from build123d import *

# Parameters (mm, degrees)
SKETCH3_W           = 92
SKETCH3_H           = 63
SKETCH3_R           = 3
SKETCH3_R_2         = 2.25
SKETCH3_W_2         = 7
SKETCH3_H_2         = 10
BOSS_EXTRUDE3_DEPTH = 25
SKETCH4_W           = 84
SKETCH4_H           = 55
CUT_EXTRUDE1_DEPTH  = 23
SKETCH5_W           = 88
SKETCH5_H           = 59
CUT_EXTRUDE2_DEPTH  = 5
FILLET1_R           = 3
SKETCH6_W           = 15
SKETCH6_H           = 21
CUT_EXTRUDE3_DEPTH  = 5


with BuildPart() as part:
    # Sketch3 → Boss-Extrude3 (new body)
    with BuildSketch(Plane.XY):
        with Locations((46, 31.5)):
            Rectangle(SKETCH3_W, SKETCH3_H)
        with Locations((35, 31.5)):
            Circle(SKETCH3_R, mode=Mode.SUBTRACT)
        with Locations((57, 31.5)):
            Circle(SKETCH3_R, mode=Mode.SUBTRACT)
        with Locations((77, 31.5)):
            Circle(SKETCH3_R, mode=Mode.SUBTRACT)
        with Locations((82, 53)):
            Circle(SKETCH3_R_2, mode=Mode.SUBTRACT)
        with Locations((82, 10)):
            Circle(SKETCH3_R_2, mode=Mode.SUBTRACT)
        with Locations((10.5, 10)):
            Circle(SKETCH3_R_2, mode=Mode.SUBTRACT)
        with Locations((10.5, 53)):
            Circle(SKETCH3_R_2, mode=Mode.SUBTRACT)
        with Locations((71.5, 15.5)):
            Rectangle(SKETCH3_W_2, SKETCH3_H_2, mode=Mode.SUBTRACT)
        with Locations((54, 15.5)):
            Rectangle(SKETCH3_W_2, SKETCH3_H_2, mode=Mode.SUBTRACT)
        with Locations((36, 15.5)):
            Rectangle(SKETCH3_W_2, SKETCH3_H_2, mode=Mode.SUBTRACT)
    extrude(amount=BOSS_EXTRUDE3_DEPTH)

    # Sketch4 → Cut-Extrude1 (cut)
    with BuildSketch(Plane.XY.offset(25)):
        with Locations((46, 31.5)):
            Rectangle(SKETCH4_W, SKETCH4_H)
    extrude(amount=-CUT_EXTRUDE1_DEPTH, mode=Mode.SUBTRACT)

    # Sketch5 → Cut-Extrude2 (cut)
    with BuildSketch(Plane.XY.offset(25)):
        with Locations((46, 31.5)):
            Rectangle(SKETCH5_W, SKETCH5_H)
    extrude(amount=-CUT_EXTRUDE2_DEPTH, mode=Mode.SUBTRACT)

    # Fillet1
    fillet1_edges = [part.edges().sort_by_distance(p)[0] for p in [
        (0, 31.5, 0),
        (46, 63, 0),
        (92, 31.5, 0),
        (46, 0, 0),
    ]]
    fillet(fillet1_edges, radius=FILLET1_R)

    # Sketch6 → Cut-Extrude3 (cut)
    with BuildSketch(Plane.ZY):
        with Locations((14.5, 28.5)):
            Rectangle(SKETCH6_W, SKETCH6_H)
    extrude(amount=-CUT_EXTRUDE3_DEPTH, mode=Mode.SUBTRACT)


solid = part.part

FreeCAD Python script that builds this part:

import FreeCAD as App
import Part
import Sketcher


def edges_at(feature, points):
    """Names of the edges that pass closest to the given points."""
    edges = feature.Shape.Edges
    near = lambda p: min(range(len(edges)), key=lambda i: edges[i].distToShape(Part.Vertex(*p))[0])
    return sorted({f"Edge{near(p) + 1}" for p in points})

doc = App.newDocument("Part")
body = doc.addObject("PartDesign::Body", "Body")

# Sketch on XY plane
sketch1 = doc.addObject("Sketcher::SketchObject", "Sketch")
body.addObject(sketch1)
sketch1.AttachmentSupport = (doc.XY_Plane, [""])
sketch1.MapMode = "FlatFace"
sketch1.addGeometry([
    Part.LineSegment(App.Vector(0, 63, 0), App.Vector(0, 0, 0)),  # 0
    Part.LineSegment(App.Vector(0, 0, 0), App.Vector(92, 0, 0)),  # 1
    Part.LineSegment(App.Vector(92, 0, 0), App.Vector(92, 63, 0)),  # 2
    Part.LineSegment(App.Vector(92, 63, 0), App.Vector(0, 63, 0)),  # 3
    Part.Circle(App.Vector(10.5, 10, 0), App.Vector(0, 0, 1), 2.2),  # 4
    Part.LineSegment(App.Vector(39.5, 10.5, 0), App.Vector(32.5, 10.5, 0)),  # 5
    Part.LineSegment(App.Vector(32.5, 10.5, 0), App.Vector(32.5, 20.5, 0)),  # 6
    Part.LineSegment(App.Vector(32.5, 20.5, 0), App.Vector(39.5, 20.5, 0)),  # 7
    Part.LineSegment(App.Vector(39.5, 20.5, 0), App.Vector(39.5, 10.5, 0)),  # 8
    Part.LineSegment(App.Vector(57.5, 10.5, 0), App.Vector(50.5, 10.5, 0)),  # 9
    Part.LineSegment(App.Vector(50.5, 10.5, 0), App.Vector(50.5, 20.5, 0)),  # 10
    Part.LineSegment(App.Vector(50.5, 20.5, 0), App.Vector(57.5, 20.5, 0)),  # 11
    Part.LineSegment(App.Vector(57.5, 20.5, 0), App.Vector(57.5, 10.5, 0)),  # 12
    Part.Circle(App.Vector(82, 10, 0), App.Vector(0, 0, 1), 2.2),  # 13
    Part.LineSegment(App.Vector(75, 10.5, 0), App.Vector(68, 10.5, 0)),  # 14
    Part.LineSegment(App.Vector(68, 10.5, 0), App.Vector(68, 20.5, 0)),  # 15
    Part.LineSegment(App.Vector(68, 20.5, 0), App.Vector(75, 20.5, 0)),  # 16
    Part.LineSegment(App.Vector(75, 20.5, 0), App.Vector(75, 10.5, 0)),  # 17
    Part.Circle(App.Vector(35, 31.5, 0), App.Vector(0, 0, 1), 3),  # 18
    Part.Circle(App.Vector(10.5, 53, 0), App.Vector(0, 0, 1), 2.2),  # 19
    Part.Circle(App.Vector(57, 31.5, 0), App.Vector(0, 0, 1), 3),  # 20
    Part.Circle(App.Vector(77, 31.5, 0), App.Vector(0, 0, 1), 3),  # 21
    Part.Circle(App.Vector(82, 53, 0), App.Vector(0, 0, 1), 2.2),  # 22
], False)
sketch1.addConstraint([
    Sketcher.Constraint("Coincident", 0, 2, 1, 1),
    Sketcher.Constraint("Coincident", 1, 2, 2, 1),
    Sketcher.Constraint("Coincident", 2, 2, 3, 1),
    Sketcher.Constraint("Coincident", 3, 2, 0, 1),
    Sketcher.Constraint("Coincident", 5, 2, 6, 1),
    Sketcher.Constraint("Coincident", 6, 2, 7, 1),
    Sketcher.Constraint("Coincident", 7, 2, 8, 1),
    Sketcher.Constraint("Coincident", 8, 2, 5, 1),
    Sketcher.Constraint("Coincident", 9, 2, 10, 1),
    Sketcher.Constraint("Coincident", 10, 2, 11, 1),
    Sketcher.Constraint("Coincident", 11, 2, 12, 1),
    Sketcher.Constraint("Coincident", 12, 2, 9, 1),
    Sketcher.Constraint("Coincident", 14, 2, 15, 1),
    Sketcher.Constraint("Coincident", 15, 2, 16, 1),
    Sketcher.Constraint("Coincident", 16, 2, 17, 1),
    Sketcher.Constraint("Coincident", 17, 2, 14, 1),
    Sketcher.Constraint("Vertical", 0),
    Sketcher.Constraint("Horizontal", 1),
    Sketcher.Constraint("Vertical", 2),
    Sketcher.Constraint("Horizontal", 3),
    Sketcher.Constraint("Horizontal", 5),
    Sketcher.Constraint("Vertical", 6),
    Sketcher.Constraint("Horizontal", 7),
    Sketcher.Constraint("Vertical", 8),
    Sketcher.Constraint("Horizontal", 9),
    Sketcher.Constraint("Vertical", 10),
    Sketcher.Constraint("Horizontal", 11),
    Sketcher.Constraint("Vertical", 12),
    Sketcher.Constraint("Horizontal", 14),
    Sketcher.Constraint("Vertical", 15),
    Sketcher.Constraint("Horizontal", 16),
    Sketcher.Constraint("Vertical", 17),
    Sketcher.Constraint("Coincident", 0, 2, -1, 1),
    Sketcher.Constraint("Equal", 4, 13),
    Sketcher.Constraint("Equal", 13, 19),
    Sketcher.Constraint("Equal", 18, 20),
    Sketcher.Constraint("Equal", 20, 21),
    Sketcher.Constraint("Equal", 19, 22),
    Sketcher.Constraint("Horizontal", 4, 3, 13, 3),
    Sketcher.Constraint("Horizontal", 18, 3, 20, 3),
    Sketcher.Constraint("Horizontal", 20, 3, 21, 3),
    Sketcher.Constraint("Horizontal", 19, 3, 22, 3),
    Sketcher.Constraint("Horizontal", 8, 2, 9, 2),
    Sketcher.Constraint("Horizontal", 7, 2, 10, 2),
    Sketcher.Constraint("Horizontal", 12, 2, 14, 2),
    Sketcher.Constraint("Horizontal", 11, 2, 15, 2),
    Sketcher.Constraint("Vertical", 4, 3, 19, 3),
    Sketcher.Constraint("Vertical", 13, 3, 22, 3),
    Sketcher.Constraint("Equal", 7, 9),
    Sketcher.Constraint("Equal", 11, 14),
    Sketcher.Constraint("Diameter", 18, 6.0),
    Sketcher.Constraint("Diameter", 4, 4.5),
    Sketcher.Constraint("DistanceX", 1, 1, 1, 2, 92.0),
    Sketcher.Constraint("DistanceX", 5, 2, 5, 1, 7.0),
    Sketcher.Constraint("DistanceY", 0, 2, 0, 1, 63.0),
    Sketcher.Constraint("DistanceY", 6, 1, 6, 2, 10.0),
    Sketcher.Constraint("DistanceY", -1, 1, 4, 3, 10.0),
    Sketcher.Constraint("DistanceX", -1, 1, 13, 3, 82.0),
    Sketcher.Constraint("DistanceX", -1, 1, 18, 3, 35.0),
    Sketcher.Constraint("DistanceY", -1, 1, 19, 3, 53.0),
    Sketcher.Constraint("DistanceX", -1, 1, 20, 3, 57.0),
    Sketcher.Constraint("DistanceX", -1, 1, 21, 3, 77.0),
    Sketcher.Constraint("DistanceX", -1, 1, 14, 2, 68.0),
    Sketcher.Constraint("DistanceY", 5, 2, 18, 3, 21.0),
    Sketcher.Constraint("DistanceX", 4, 3, 5, 2, 22.0),
    Sketcher.Constraint("DistanceX", 8, 2, 9, 2, 11.0),
    Sketcher.Constraint("DistanceX", -1, 1, 4, 3, 10.5),
    Sketcher.Constraint("DistanceY", -1, 1, 18, 3, 31.5),
])
pad1 = doc.addObject("PartDesign::Pad", "Pad")
body.addObject(pad1)
pad1.Profile = sketch1
pad1.Length = 25

# Sketch on XY plane
sketch2 = doc.addObject("Sketcher::SketchObject", "Sketch001")
body.addObject(sketch2)
sketch2.AttachmentSupport = (doc.XY_Plane, [""])
sketch2.MapMode = "FlatFace"
sketch2.AttachmentOffset = App.Placement(App.Vector(0, 0, 25), App.Rotation())
sketch2.addGeometry([
    Part.LineSegment(App.Vector(4, 59, 0), App.Vector(4, 4, 0)),
    Part.LineSegment(App.Vector(4, 4, 0), App.Vector(88, 4, 0)),
    Part.LineSegment(App.Vector(88, 4, 0), App.Vector(88, 59, 0)),
    Part.LineSegment(App.Vector(88, 59, 0), App.Vector(4, 59, 0)),
], False)
sketch2.addConstraint([
    Sketcher.Constraint("Coincident", 0, 2, 1, 1),
    Sketcher.Constraint("Coincident", 1, 2, 2, 1),
    Sketcher.Constraint("Coincident", 2, 2, 3, 1),
    Sketcher.Constraint("Coincident", 3, 2, 0, 1),
    Sketcher.Constraint("Vertical", 0),
    Sketcher.Constraint("Horizontal", 1),
    Sketcher.Constraint("Vertical", 2),
    Sketcher.Constraint("Horizontal", 3),
    Sketcher.Constraint("DistanceX", 1, 1, 1, 2, 84.0),
    Sketcher.Constraint("DistanceY", 0, 2, 0, 1, 55.0),
    Sketcher.Constraint("DistanceX", -1, 1, 0, 2, 4.0),
    Sketcher.Constraint("DistanceY", -1, 1, 0, 2, 4.0),
])
pocket1 = doc.addObject("PartDesign::Pocket", "Pocket")
body.addObject(pocket1)
pocket1.Profile = sketch2
pocket1.Length = 23

# Sketch on XY plane
sketch3 = doc.addObject("Sketcher::SketchObject", "Sketch002")
body.addObject(sketch3)
sketch3.AttachmentSupport = (doc.XY_Plane, [""])
sketch3.MapMode = "FlatFace"
sketch3.AttachmentOffset = App.Placement(App.Vector(0, 0, 25), App.Rotation())
sketch3.addGeometry([
    Part.LineSegment(App.Vector(2, 61, 0), App.Vector(2, 2, 0)),
    Part.LineSegment(App.Vector(2, 2, 0), App.Vector(90, 2, 0)),
    Part.LineSegment(App.Vector(90, 2, 0), App.Vector(90, 61, 0)),
    Part.LineSegment(App.Vector(90, 61, 0), App.Vector(2, 61, 0)),
], False)
sketch3.addConstraint([
    Sketcher.Constraint("Coincident", 0, 2, 1, 1),
    Sketcher.Constraint("Coincident", 1, 2, 2, 1),
    Sketcher.Constraint("Coincident", 2, 2, 3, 1),
    Sketcher.Constraint("Coincident", 3, 2, 0, 1),
    Sketcher.Constraint("Vertical", 0),
    Sketcher.Constraint("Horizontal", 1),
    Sketcher.Constraint("Vertical", 2),
    Sketcher.Constraint("Horizontal", 3),
    Sketcher.Constraint("DistanceX", 1, 1, 1, 2, 88.0),
    Sketcher.Constraint("DistanceY", 0, 2, 0, 1, 59.0),
    Sketcher.Constraint("DistanceX", -1, 1, 0, 2, 2.0),
    Sketcher.Constraint("DistanceY", -1, 1, 0, 2, 2.0),
])
pocket2 = doc.addObject("PartDesign::Pocket", "Pocket001")
body.addObject(pocket2)
pocket2.Profile = sketch3
pocket2.Length = 5
doc.recompute()

fillet = doc.addObject("PartDesign::Fillet", "Fillet")
body.addObject(fillet)
fillet.Base = (pocket2, edges_at(pocket2, [
    (0, 31.5, 0),
    (46, 63, 0),
    (92, 31.5, 0),
    (46, 0, 0),
]))
fillet.Radius = 3

# Sketch on YZ plane
sketch4 = doc.addObject("Sketcher::SketchObject", "Sketch003")
body.addObject(sketch4)
sketch4.AttachmentSupport = (doc.YZ_Plane, [""])
sketch4.MapMode = "FlatFace"
sketch4.addGeometry([
    Part.LineSegment(App.Vector(39, 7, 0), App.Vector(18, 7, 0)),
    Part.LineSegment(App.Vector(18, 7, 0), App.Vector(18, 22, 0)),
    Part.LineSegment(App.Vector(18, 22, 0), App.Vector(39, 22, 0)),
    Part.LineSegment(App.Vector(39, 22, 0), App.Vector(39, 7, 0)),
], False)
sketch4.addConstraint([
    Sketcher.Constraint("Coincident", 0, 2, 1, 1),
    Sketcher.Constraint("Coincident", 1, 2, 2, 1),
    Sketcher.Constraint("Coincident", 2, 2, 3, 1),
    Sketcher.Constraint("Coincident", 3, 2, 0, 1),
    Sketcher.Constraint("Horizontal", 0),
    Sketcher.Constraint("Vertical", 1),
    Sketcher.Constraint("Horizontal", 2),
    Sketcher.Constraint("Vertical", 3),
    Sketcher.Constraint("DistanceX", 0, 2, 0, 1, 21.0),
    Sketcher.Constraint("DistanceY", 1, 1, 1, 2, 15.0),
    Sketcher.Constraint("DistanceX", -1, 1, 0, 2, 18.0),
    Sketcher.Constraint("DistanceY", -1, 1, 0, 2, 7.0),
])
pocket3 = doc.addObject("PartDesign::Pocket", "Pocket002")
body.addObject(pocket3)
pocket3.Profile = sketch4
pocket3.Length = 5
pocket3.Reversed = True

doc.recompute()
